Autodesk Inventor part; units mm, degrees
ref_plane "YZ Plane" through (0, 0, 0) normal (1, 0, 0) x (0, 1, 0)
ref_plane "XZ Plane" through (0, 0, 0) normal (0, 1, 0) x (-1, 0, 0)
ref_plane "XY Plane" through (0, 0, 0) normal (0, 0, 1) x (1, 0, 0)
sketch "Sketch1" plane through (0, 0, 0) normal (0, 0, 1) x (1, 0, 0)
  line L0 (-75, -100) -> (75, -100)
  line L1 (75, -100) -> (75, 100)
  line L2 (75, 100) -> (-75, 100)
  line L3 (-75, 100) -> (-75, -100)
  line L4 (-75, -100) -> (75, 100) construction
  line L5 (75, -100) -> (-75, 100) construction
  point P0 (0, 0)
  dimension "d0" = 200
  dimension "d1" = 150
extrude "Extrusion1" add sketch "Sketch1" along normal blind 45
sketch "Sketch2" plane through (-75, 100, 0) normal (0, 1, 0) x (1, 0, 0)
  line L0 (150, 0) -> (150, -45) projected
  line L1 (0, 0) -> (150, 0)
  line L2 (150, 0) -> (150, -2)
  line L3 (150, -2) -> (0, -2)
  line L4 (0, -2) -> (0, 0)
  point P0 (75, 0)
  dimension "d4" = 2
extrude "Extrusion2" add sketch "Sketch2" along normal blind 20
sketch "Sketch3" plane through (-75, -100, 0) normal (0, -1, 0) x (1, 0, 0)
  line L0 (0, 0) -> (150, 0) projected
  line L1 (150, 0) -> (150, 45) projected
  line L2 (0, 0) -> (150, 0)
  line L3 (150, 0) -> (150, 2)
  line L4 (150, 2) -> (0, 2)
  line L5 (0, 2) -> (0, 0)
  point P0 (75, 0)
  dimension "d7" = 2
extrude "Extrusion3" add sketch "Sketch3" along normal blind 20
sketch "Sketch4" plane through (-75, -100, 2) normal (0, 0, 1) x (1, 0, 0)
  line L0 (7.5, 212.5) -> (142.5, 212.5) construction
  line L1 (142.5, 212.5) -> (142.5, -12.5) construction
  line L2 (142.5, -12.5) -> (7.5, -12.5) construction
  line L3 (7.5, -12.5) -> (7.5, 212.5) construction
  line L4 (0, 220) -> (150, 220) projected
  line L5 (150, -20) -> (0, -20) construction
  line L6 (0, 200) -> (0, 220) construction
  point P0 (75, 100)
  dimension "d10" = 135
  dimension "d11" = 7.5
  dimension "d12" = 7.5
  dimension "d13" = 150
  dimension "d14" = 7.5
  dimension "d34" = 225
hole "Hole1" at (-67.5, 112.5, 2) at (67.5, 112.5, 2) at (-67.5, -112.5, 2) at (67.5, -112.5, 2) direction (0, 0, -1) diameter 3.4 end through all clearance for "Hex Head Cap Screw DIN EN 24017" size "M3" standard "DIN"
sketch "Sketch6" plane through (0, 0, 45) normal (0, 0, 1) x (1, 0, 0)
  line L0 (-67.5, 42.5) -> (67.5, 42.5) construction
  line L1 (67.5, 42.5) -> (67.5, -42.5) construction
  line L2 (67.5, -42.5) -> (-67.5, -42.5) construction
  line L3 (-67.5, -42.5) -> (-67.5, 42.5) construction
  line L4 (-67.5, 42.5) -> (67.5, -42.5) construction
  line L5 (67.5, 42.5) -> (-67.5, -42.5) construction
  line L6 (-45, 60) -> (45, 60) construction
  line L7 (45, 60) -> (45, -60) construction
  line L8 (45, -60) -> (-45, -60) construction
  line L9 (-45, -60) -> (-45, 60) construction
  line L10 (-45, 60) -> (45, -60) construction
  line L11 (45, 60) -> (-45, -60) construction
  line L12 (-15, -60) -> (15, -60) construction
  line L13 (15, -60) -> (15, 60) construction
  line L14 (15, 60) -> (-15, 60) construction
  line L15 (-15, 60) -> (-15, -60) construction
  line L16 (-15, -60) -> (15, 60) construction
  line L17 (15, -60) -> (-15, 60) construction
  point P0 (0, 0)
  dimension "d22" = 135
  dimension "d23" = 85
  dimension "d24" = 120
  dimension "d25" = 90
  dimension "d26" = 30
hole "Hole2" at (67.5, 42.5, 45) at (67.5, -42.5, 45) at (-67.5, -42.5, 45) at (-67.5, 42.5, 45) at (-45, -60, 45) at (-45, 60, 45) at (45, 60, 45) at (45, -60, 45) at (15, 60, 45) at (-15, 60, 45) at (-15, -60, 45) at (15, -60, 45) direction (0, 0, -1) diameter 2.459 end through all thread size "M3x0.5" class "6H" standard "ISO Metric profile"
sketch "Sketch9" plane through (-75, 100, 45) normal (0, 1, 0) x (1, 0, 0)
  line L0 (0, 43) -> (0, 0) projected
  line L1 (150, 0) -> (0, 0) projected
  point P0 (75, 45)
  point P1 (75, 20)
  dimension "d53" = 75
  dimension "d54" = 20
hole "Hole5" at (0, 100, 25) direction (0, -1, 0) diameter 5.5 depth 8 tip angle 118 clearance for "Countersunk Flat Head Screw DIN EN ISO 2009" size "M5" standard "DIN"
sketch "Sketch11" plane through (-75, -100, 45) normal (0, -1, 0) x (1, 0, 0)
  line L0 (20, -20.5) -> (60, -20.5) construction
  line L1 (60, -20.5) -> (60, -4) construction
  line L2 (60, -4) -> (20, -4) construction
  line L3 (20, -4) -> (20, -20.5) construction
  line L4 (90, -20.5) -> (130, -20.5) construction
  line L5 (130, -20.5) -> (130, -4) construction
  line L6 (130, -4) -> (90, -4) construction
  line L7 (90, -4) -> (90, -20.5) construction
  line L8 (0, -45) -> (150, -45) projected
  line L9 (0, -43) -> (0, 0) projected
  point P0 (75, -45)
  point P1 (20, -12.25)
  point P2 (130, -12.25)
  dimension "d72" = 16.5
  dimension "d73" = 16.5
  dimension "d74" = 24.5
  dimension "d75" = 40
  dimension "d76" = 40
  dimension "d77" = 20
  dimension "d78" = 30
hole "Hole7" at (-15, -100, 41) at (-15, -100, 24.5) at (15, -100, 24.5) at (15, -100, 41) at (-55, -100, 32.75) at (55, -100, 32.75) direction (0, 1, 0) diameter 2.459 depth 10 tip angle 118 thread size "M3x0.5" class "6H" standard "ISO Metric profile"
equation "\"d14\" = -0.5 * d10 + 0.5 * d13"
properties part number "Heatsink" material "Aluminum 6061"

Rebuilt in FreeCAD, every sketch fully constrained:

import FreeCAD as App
import Part
import Sketcher

V = App.Vector

doc = App.newDocument("Part")
body = doc.addObject("PartDesign::Body", "Body")

# Sketch on XY plane
sketch1 = doc.addObject("Sketcher::SketchObject", "Sketch")
body.addObject(sketch1)
sketch1.AttachmentSupport = (doc.XY_Plane, [""])
sketch1.MapMode = "FlatFace"
sketch1.addGeometry([
    Part.LineSegment(V(-75, 100, 0), V(-75, -100, 0)),
    Part.LineSegment(V(-75, -100, 0), V(75, -100, 0)),
    Part.LineSegment(V(75, -100, 0), V(75, 100, 0)),
    Part.LineSegment(V(75, 100, 0), V(-75, 100, 0)),
], False)
sketch1.addConstraint([
    Sketcher.Constraint("Coincident", 0, 2, 1, 1),
    Sketcher.Constraint("Coincident", 1, 2, 2, 1),
    Sketcher.Constraint("Coincident", 2, 2, 3, 1),
    Sketcher.Constraint("Coincident", 3, 2, 0, 1),
    Sketcher.Constraint("Vertical", 0),
    Sketcher.Constraint("Horizontal", 1),
    Sketcher.Constraint("Vertical", 2),
    Sketcher.Constraint("Horizontal", 3),
    Sketcher.Constraint("Symmetric", 0, 2, 2, 2, -1, 1),
    Sketcher.Constraint("DistanceX", 1, 1, 1, 2, 150.0),
    Sketcher.Constraint("DistanceY", 0, 2, 0, 1, 200.0),
])
pad1 = doc.addObject("PartDesign::Pad", "Pad")
body.addObject(pad1)
pad1.Profile = sketch1
pad1.Length = 45

# Sketch on XZ plane
sketch2 = doc.addObject("Sketcher::SketchObject", "Sketch001")
body.addObject(sketch2)
sketch2.AttachmentSupport = (doc.XZ_Plane, [""])
sketch2.MapMode = "FlatFace"
sketch2.AttachmentOffset = App.Placement(V(0, 0, -100), App.Rotation())
sketch2.addGeometry([
    Part.LineSegment(V(75, 2, 0), V(75, 0, 0)),
    Part.LineSegment(V(75, 0, 0), V(-75, 0, 0)),
    Part.LineSegment(V(-75, 0, 0), V(-75, 2, 0)),
    Part.LineSegment(V(-75, 2, 0), V(75, 2, 0)),
], False)
sketch2.addConstraint([
    Sketcher.Constraint("Coincident", 0, 2, 1, 1),
    Sketcher.Constraint("Coincident", 1, 2, 2, 1),
    Sketcher.Constraint("Coincident", 2, 2, 3, 1),
    Sketcher.Constraint("Coincident", 3, 2, 0, 1),
    Sketcher.Constraint("Vertical", 0),
    Sketcher.Constraint("Horizontal", 1),
    Sketcher.Constraint("Vertical", 2),
    Sketcher.Constraint("Horizontal", 3),
    Sketcher.Constraint("Symmetric", 0, 2, 1, 2, -1, 1),
    Sketcher.Constraint("DistanceY", 0, 2, 0, 1, 2.0),
    Sketcher.Constraint("DistanceX", 1, 2, 1, 1, 150.0),
])
pad2 = doc.addObject("PartDesign::Pad", "Pad001")
body.addObject(pad2)
pad2.Profile = sketch2
pad2.Length = 20
pad2.Reversed = True

# Sketch on XZ plane
sketch3 = doc.addObject("Sketcher::SketchObject", "Sketch002")
body.addObject(sketch3)
sketch3.AttachmentSupport = (doc.XZ_Plane, [""])
sketch3.MapMode = "FlatFace"
sketch3.AttachmentOffset = App.Placement(V(0, 0, 100), App.Rotation())
sketch3.addGeometry([
    Part.LineSegment(V(-75, 2, 0), V(-75, 0, 0)),
    Part.LineSegment(V(-75, 0, 0), V(75, 0, 0)),
    Part.LineSegment(V(75, 0, 0), V(75, 2, 0)),
    Part.LineSegment(V(75, 2, 0), V(-75, 2, 0)),
], False)
sketch3.addConstraint([
    Sketcher.Constraint("Coincident", 0, 2, 1, 1),
    Sketcher.Constraint("Coincident", 1, 2, 2, 1),
    Sketcher.Constraint("Coincident", 2, 2, 3, 1),
    Sketcher.Constraint("Coincident", 3, 2, 0, 1),
    Sketcher.Constraint("Vertical", 0),
    Sketcher.Constraint("Horizontal", 1),
    Sketcher.Constraint("Vertical", 2),
    Sketcher.Constraint("Horizontal", 3),
    Sketcher.Constraint("Symmetric", 0, 2, 1, 2, -1, 1),
    Sketcher.Constraint("DistanceY", 0, 2, 0, 1, 2.0),
    Sketcher.Constraint("DistanceX", 1, 1, 1, 2, 150.0),
])
pad3 = doc.addObject("PartDesign::Pad", "Pad002")
body.addObject(pad3)
pad3.Profile = sketch3
pad3.Length = 20

# Sketch on XY plane
sketch4 = doc.addObject("Sketcher::SketchObject", "Sketch003")
body.addObject(sketch4)
sketch4.AttachmentSupport = (doc.XY_Plane, [""])
sketch4.MapMode = "FlatFace"
sketch4.AttachmentOffset = App.Placement(V(0, 0, 2), App.Rotation())
sketch4.addGeometry([
    Part.Circle(V(-67.5, 112.5, 0), V(0, 0, 1), 1.7),
    Part.Circle(V(67.5, 112.5, 0), V(0, 0, 1), 1.7),
    Part.Circle(V(-67.5, -112.5, 0), V(0, 0, 1), 1.7),
    Part.Circle(V(67.5, -112.5, 0), V(0, 0, 1), 1.7),
], False)
sketch4.addConstraint([
    Sketcher.Constraint("Equal", 0, 1),
    Sketcher.Constraint("Equal", 1, 2),
    Sketcher.Constraint("Equal", 2, 3),
    Sketcher.Constraint("Symmetric", 1, 3, 2, 3, -1, 1),
    Sketcher.Constraint("Symmetric", 0, 3, 3, 3, -1, 1),
    Sketcher.Constraint("Symmetric", 0, 3, 1, 3, -2),
    Sketcher.Constraint("Diameter", 0, 3.4),
    Sketcher.Constraint("DistanceX", 0, 3, 1, 3, 135.0),
    Sketcher.Constraint("DistanceY", 2, 3, 0, 3, 225.0),
])
doc.recompute()
hole = doc.addObject("PartDesign::Hole", "Hole")
body.addObject(hole)
hole.Profile = sketch4
hole.ThreadType = "None"
hole.Diameter = 3.4
hole.DepthType = "ThroughAll"

# Sketch on XY plane
sketch5 = doc.addObject("Sketcher::SketchObject", "Sketch004")
body.addObject(sketch5)
sketch5.AttachmentSupport = (doc.XY_Plane, [""])
sketch5.MapMode = "FlatFace"
sketch5.AttachmentOffset = App.Placement(V(0, 0, 45), App.Rotation())
sketch5.addGeometry([
    Part.Circle(V(67.5, 42.5, 0), V(0, 0, 1), 1.2),  # 0
    Part.Circle(V(67.5, -42.5, 0), V(0, 0, 1), 1.2),  # 1
    Part.Circle(V(-67.5, -42.5, 0), V(0, 0, 1), 1.2),  # 2
    Part.Circle(V(-67.5, 42.5, 0), V(0, 0, 1), 1.2),  # 3
    Part.Circle(V(-45, -60, 0), V(0, 0, 1), 1.2),  # 4
    Part.Circle(V(-45, 60, 0), V(0, 0, 1), 1.2),  # 5
    Part.Circle(V(45, 60, 0), V(0, 0, 1), 1.2),  # 6
    Part.Circle(V(45, -60, 0), V(0, 0, 1), 1.2),  # 7
    Part.Circle(V(15, 60, 0), V(0, 0, 1), 1.2),  # 8
    Part.Circle(V(-15, 60, 0), V(0, 0, 1), 1.2),  # 9
    Part.Circle(V(-15, -60, 0), V(0, 0, 1), 1.2),  # 10
    Part.Circle(V(15, -60, 0), V(0, 0, 1), 1.2),  # 11
], False)
sketch5.addConstraint([
    Sketcher.Constraint("Equal", 0, 1),
    Sketcher.Constraint("Equal", 1, 2),
    Sketcher.Constraint("Equal", 2, 3),
    Sketcher.Constraint("Equal", 3, 4),
    Sketcher.Constraint("Equal", 4, 5),
    Sketcher.Constraint("Equal", 5, 6),
    Sketcher.Constraint("Equal", 6, 7),
    Sketcher.Constraint("Equal", 7, 8),
    Sketcher.Constraint("Equal", 8, 9),
    Sketcher.Constraint("Equal", 9, 10),
    Sketcher.Constraint("Equal", 10, 11),
    Sketcher.Constraint("Symmetric", 0, 3, 2, 3, -1, 1),
    Sketcher.Constraint("Symmetric", 1, 3, 3, 3, -1, 1),
    Sketcher.Constraint("Symmetric", 4, 3, 6, 3, -1, 1),
    Sketcher.Constraint("Symmetric", 5, 3, 7, 3, -1, 1),
    Sketcher.Constraint("Symmetric", 8, 3, 10, 3, -1, 1),
    Sketcher.Constraint("Symmetric", 9, 3, 11, 3, -1, 1),
    Sketcher.Constraint("Symmetric", 1, 3, 2, 3, -2),
    Sketcher.Constraint("Symmetric", 5, 3, 6, 3, -2),
    Sketcher.Constraint("Symmetric", 8, 3, 9, 3, -2),
    Sketcher.Constraint("Horizontal", 6, 3, 8, 3),
    Sketcher.Constraint("Diameter", 0, 2.459),
    Sketcher.Constraint("DistanceX", 4, 3, -1, 1, 45.0),
    Sketcher.Constraint("DistanceY", 4, 3, -1, 1, 60.0),
    Sketcher.Constraint("DistanceX", -1, 1, 8, 3, 15.0),
    Sketcher.Constraint("DistanceY", 1, 3, 0, 3, 85.0),
    Sketcher.Constraint("DistanceX", 2, 3, 1, 3, 135.0),
])
doc.recompute()
hole2 = doc.addObject("PartDesign::Hole", "Hole001")
body.addObject(hole2)
hole2.Profile = sketch5
hole2.ThreadType = "None"
hole2.Diameter = 2.459
hole2.DepthType = "ThroughAll"

# Sketch on XZ plane
sketch6 = doc.addObject("Sketcher::SketchObject", "Sketch005")
body.addObject(sketch6)
sketch6.AttachmentSupport = (doc.XZ_Plane, [""])
sketch6.MapMode = "FlatFace"
sketch6.AttachmentOffset = App.Placement(V(0, 0, -100), App.Rotation())
sketch6.addGeometry(Part.Circle(V(0, 25, 0), V(0, 0, 1), 2.8), False)
sketch6.addConstraint([
    Sketcher.Constraint("PointOnObject", 0, 3, -2),
    Sketcher.Constraint("Diameter", 0, 5.5),
    Sketcher.Constraint("DistanceY", -1, 1, 0, 3, 25.0),
])
doc.recompute()
hole3 = doc.addObject("PartDesign::Hole", "Hole002")
body.addObject(hole3)
hole3.Profile = sketch6
hole3.ThreadType = "None"
hole3.Diameter = 5.5
hole3.DepthType = "Dimension"
hole3.Depth = 8
hole3.DrillPoint = "Angled"
hole3.DrillPointAngle = 118
hole3.Reversed = True

# Sketch on XZ plane
sketch7 = doc.addObject("Sketcher::SketchObject", "Sketch006")
body.addObject(sketch7)
sketch7.AttachmentSupport = (doc.XZ_Plane, [""])
sketch7.MapMode = "FlatFace"
sketch7.AttachmentOffset = App.Placement(V(0, 0, 100), App.Rotation())
sketch7.addGeometry([
    Part.Circle(V(-15, 41, 0), V(0, 0, 1), 1.2),  # 0
    Part.Circle(V(-15, 24.5, 0), V(0, 0, 1), 1.2),  # 1
    Part.Circle(V(15, 24.5, 0), V(0, 0, 1), 1.2),  # 2
    Part.Circle(V(15, 41, 0), V(0, 0, 1), 1.2),  # 3
    Part.Circle(V(-55, 32.8, 0), V(0, 0, 1), 1.2),  # 4
    Part.Circle(V(55, 32.8, 0), V(0, 0, 1), 1.2),  # 5
], False)
sketch7.addConstraint([
    Sketcher.Constraint("Equal", 0, 1),
    Sketcher.Constraint("Equal", 1, 2),
    Sketcher.Constraint("Equal", 2, 3),
    Sketcher.Constraint("Equal", 3, 4),
    Sketcher.Constraint("Equal", 4, 5),
    Sketcher.Constraint("Symmetric", 1, 3, 2, 3, -2),
    Sketcher.Constraint("Symmetric", 0, 3, 3, 3, -2),
    Sketcher.Constraint("Symmetric", 4, 3, 5, 3, -2),
    Sketcher.Constraint("Vertical", 0, 3, 1, 3),
    Sketcher.Constraint("Diameter", 0, 2.459),
    Sketcher.Constraint("DistanceX", 0, 3, -1, 1, 15.0),
    Sketcher.Constraint("DistanceY", -1, 1, 0, 3, 41.0),
    Sketcher.Constraint("DistanceX", 4, 3, -1, 1, 55.0),
    Sketcher.Constraint("DistanceY", -1, 1, 1, 3, 24.5),
    Sketcher.Constraint("DistanceY", -1, 1, 4, 3, 32.75),
])
doc.recompute()
hole4 = doc.addObject("PartDesign::Hole", "Hole003")
body.addObject(hole4)
hole4.Profile = sketch7
hole4.ThreadType = "None"
hole4.Diameter = 2.459
hole4.DepthType = "Dimension"
hole4.Depth = 10
hole4.DrillPoint = "Angled"
hole4.DrillPointAngle = 118

doc.recompute()
